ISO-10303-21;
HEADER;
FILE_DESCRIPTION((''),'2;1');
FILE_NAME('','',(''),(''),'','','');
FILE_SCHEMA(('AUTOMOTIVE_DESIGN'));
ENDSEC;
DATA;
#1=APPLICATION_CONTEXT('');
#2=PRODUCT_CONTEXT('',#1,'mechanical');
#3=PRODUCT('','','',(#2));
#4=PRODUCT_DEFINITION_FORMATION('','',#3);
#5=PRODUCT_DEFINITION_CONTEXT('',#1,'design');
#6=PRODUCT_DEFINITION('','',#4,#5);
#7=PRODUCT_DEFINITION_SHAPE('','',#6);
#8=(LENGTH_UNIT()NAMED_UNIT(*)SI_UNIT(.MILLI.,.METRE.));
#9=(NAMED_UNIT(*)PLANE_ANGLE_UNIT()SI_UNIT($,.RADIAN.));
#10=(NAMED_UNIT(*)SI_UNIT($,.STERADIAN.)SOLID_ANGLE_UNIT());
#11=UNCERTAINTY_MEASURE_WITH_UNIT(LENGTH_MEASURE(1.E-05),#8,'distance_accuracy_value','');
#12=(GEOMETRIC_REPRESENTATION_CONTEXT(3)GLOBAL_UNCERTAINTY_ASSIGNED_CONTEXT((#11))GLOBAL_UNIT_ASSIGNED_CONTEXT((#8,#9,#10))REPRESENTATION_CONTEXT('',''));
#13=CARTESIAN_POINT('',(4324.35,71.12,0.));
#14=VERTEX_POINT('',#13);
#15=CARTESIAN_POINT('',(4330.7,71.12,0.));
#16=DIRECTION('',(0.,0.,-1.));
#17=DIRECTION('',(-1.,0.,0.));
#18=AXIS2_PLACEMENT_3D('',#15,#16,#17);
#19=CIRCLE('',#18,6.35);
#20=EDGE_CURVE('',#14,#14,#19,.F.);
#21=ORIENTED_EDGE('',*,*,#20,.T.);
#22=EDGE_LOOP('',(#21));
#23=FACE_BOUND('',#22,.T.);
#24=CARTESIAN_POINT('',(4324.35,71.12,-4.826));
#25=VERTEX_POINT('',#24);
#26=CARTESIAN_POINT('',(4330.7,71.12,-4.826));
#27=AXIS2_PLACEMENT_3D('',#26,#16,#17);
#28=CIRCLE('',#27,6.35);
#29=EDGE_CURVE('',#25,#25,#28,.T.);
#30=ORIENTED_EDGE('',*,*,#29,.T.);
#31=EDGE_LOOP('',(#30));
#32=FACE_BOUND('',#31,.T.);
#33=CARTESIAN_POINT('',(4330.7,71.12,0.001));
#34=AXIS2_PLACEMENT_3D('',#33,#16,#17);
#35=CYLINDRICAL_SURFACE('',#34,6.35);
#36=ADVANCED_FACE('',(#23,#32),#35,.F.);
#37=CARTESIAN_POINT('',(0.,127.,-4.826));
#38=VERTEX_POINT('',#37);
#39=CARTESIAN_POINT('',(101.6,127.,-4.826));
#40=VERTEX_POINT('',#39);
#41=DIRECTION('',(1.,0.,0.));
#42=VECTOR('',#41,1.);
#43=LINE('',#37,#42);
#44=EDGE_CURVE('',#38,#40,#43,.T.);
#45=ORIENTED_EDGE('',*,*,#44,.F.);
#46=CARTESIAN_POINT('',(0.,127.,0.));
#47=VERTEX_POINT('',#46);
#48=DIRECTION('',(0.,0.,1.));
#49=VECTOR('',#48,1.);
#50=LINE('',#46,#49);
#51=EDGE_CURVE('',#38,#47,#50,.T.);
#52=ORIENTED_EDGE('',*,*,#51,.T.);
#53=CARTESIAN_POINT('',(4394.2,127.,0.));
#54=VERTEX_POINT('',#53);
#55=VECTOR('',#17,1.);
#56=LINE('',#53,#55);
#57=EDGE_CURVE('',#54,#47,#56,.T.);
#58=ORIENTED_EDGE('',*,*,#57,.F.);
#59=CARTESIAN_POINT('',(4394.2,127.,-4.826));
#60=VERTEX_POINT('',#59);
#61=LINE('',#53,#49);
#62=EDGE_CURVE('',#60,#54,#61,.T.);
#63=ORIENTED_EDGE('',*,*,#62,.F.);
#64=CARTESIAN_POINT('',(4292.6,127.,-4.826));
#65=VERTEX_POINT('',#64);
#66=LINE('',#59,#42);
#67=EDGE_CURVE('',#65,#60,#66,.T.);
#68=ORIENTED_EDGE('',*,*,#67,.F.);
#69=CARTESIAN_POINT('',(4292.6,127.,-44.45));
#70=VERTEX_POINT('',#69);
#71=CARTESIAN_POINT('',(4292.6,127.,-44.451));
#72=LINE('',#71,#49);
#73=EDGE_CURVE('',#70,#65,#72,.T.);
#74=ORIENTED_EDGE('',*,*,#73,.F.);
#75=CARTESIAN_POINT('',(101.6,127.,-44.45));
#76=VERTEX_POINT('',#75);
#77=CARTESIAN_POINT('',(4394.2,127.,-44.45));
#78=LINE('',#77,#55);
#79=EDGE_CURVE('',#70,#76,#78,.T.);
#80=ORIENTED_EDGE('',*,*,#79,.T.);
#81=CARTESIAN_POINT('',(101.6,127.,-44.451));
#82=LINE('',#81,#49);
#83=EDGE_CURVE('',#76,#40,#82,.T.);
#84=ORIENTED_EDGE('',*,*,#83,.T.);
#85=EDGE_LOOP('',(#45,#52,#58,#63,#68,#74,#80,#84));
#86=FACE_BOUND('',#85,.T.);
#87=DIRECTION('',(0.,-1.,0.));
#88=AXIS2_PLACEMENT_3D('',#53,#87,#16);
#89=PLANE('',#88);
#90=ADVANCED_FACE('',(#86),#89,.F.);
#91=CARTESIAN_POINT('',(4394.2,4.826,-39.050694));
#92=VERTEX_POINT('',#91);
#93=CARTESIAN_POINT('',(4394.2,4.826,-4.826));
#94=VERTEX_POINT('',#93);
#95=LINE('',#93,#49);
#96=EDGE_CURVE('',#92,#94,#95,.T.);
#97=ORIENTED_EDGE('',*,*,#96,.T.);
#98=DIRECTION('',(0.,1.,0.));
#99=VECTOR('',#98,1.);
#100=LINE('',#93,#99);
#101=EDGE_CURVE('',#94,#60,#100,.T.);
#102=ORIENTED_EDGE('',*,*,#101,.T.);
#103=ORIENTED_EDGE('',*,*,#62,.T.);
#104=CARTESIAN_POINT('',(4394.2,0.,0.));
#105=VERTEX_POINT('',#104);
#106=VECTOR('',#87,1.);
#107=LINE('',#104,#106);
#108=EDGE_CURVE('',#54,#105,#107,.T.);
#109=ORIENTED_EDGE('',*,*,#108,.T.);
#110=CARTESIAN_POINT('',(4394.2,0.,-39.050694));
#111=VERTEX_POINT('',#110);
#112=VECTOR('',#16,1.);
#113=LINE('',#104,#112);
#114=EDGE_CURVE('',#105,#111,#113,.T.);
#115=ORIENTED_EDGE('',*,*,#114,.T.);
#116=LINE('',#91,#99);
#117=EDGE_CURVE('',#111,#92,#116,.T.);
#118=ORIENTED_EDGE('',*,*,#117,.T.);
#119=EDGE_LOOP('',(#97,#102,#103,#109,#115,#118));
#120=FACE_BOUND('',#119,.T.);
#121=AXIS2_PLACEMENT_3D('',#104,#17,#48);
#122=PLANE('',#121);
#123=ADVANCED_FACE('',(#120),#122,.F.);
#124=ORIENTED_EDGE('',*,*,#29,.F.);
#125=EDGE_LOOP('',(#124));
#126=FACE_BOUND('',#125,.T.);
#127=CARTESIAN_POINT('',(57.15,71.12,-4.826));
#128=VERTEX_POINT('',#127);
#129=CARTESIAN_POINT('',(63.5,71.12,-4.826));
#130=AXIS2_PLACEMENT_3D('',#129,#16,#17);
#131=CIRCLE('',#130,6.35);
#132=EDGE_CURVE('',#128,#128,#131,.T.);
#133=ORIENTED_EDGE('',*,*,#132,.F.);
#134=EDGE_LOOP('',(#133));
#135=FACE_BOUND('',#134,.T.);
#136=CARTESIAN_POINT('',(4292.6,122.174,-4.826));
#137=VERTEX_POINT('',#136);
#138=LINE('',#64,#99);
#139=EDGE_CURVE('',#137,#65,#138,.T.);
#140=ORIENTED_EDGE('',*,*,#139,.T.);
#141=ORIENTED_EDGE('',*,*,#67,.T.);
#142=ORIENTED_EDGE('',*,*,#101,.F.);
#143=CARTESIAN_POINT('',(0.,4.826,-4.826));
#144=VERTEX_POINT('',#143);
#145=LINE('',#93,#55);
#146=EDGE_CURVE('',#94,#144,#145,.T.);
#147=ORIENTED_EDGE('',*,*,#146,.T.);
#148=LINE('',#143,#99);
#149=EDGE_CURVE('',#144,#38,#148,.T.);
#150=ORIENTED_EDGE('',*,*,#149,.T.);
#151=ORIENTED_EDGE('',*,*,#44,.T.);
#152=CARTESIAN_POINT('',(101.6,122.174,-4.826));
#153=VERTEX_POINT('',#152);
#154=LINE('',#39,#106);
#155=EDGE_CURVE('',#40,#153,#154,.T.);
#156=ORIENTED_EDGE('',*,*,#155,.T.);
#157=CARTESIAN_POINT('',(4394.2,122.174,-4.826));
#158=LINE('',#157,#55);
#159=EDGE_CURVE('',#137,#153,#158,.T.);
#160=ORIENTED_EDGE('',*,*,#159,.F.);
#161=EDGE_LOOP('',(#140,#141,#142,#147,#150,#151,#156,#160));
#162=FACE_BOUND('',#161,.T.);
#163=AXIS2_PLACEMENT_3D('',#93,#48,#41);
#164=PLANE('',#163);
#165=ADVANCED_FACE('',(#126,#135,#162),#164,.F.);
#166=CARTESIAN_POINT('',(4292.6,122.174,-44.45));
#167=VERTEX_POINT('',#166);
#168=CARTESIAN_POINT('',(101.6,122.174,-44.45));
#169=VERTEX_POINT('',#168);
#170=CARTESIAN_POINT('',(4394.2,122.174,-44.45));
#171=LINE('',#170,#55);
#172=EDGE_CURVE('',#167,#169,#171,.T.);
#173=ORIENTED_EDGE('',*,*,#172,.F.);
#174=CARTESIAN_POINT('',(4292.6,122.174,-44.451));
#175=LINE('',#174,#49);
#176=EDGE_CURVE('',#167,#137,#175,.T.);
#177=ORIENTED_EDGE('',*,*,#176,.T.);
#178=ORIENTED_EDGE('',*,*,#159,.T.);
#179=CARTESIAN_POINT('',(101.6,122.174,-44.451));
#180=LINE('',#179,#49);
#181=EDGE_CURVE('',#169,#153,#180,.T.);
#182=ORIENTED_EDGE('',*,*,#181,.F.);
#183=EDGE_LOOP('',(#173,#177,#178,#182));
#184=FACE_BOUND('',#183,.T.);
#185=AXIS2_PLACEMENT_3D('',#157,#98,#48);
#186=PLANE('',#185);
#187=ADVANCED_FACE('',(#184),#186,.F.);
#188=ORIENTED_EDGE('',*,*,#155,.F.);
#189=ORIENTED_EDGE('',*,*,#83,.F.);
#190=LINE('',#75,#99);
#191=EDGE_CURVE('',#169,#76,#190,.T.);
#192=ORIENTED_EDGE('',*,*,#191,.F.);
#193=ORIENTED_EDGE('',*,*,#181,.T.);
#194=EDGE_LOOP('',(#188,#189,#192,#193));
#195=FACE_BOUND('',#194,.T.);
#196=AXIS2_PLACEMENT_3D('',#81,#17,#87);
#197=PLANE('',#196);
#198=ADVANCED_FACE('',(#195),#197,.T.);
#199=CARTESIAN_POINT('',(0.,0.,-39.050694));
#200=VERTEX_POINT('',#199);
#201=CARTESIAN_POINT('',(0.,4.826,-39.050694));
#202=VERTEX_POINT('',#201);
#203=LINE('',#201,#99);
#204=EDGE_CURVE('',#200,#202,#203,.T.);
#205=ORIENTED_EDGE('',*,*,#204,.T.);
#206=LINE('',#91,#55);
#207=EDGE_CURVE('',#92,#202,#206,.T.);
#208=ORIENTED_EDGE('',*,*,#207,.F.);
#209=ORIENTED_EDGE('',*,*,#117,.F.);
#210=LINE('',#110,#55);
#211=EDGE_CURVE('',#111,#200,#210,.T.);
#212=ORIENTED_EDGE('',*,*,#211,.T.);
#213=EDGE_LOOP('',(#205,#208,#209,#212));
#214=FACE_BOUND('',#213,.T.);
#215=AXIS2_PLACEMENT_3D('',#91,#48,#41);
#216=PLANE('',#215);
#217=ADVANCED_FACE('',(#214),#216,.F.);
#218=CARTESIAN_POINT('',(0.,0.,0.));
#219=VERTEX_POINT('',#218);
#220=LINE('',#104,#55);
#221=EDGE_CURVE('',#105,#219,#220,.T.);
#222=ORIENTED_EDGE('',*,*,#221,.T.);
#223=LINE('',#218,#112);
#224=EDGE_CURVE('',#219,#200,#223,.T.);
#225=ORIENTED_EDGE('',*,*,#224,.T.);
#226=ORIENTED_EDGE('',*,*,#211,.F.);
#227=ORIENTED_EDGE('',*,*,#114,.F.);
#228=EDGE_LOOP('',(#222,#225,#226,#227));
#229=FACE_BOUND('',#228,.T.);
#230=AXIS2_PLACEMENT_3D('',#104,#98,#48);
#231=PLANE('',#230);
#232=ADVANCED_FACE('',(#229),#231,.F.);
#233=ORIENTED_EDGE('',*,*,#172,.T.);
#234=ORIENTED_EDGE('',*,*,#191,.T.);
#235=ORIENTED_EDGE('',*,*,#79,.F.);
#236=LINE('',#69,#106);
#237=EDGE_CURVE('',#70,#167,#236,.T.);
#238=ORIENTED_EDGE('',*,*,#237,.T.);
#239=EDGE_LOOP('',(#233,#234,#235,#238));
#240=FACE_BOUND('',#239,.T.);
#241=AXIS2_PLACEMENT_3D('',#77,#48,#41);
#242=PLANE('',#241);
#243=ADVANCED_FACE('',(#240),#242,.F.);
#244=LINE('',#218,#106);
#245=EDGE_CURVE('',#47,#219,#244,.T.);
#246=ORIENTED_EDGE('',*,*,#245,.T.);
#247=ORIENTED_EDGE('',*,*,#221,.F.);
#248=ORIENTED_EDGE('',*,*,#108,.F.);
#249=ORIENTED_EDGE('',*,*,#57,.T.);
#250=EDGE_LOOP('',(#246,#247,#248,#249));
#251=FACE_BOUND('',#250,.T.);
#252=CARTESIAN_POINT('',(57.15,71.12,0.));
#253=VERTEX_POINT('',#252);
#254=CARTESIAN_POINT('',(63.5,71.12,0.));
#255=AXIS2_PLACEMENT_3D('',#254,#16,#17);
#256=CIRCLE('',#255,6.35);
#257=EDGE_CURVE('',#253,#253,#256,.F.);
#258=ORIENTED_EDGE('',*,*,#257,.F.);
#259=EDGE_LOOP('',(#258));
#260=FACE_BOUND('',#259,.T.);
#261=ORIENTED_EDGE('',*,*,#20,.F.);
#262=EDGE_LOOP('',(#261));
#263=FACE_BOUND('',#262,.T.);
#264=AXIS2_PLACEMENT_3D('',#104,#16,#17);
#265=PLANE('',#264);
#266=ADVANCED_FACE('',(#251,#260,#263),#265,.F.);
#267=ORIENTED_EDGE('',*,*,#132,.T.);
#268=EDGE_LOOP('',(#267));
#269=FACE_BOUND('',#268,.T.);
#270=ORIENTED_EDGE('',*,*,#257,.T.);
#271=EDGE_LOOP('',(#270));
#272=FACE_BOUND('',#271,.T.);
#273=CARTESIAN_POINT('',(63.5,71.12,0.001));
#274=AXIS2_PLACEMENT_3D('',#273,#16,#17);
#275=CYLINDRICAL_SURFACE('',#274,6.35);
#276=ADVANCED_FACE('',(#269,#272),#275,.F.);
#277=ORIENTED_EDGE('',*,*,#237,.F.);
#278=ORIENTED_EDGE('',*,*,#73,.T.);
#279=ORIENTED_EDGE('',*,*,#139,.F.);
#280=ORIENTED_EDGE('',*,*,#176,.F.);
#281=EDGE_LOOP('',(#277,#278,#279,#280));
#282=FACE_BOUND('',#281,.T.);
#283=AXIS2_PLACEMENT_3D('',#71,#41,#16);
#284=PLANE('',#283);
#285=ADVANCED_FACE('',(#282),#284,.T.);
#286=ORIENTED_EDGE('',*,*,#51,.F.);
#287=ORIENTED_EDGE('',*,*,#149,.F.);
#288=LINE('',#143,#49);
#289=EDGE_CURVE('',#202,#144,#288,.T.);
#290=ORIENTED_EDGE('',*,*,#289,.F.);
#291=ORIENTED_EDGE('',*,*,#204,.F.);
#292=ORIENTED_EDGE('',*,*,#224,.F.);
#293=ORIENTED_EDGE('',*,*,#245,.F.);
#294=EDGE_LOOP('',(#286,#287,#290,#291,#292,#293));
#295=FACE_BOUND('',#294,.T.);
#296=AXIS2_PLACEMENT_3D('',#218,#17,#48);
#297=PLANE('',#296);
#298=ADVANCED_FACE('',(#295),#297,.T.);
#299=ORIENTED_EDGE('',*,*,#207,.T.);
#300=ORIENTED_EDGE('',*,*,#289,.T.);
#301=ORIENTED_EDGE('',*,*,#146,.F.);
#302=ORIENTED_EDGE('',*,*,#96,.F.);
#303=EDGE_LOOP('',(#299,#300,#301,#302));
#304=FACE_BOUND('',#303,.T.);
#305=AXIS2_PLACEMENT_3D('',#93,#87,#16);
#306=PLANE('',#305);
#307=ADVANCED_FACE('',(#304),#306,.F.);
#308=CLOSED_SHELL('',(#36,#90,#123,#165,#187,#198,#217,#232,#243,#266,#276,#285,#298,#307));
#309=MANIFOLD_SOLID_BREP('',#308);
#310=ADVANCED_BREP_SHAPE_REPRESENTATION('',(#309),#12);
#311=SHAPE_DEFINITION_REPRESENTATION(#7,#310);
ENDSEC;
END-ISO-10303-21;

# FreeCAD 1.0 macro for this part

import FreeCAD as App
import Part
import Sketcher
from FreeCAD import Vector
Q = App.Units.Quantity

doc = App.newDocument("Part")
params = doc.addObject("Spreadsheet::Sheet", "Params")
for row, (alias, value) in enumerate([
    ("sketch1_width", "5 in"),
    ("sketch1_width2", "0.19 in"),
    ("sketch1_height", "1.56 in"),
    ("sketch1_height2", "1.75 in"),
    ("pad1_length", "173 in"),
    ("sketch2_diameter", "0.5 in"),
    ("sketch3_diameter", "0.5 in"),
    ("sketch4_width", "4 in"),
    ("sketch4_height", "0.19 in"),
    ("sketch5_width", "4 in"),
    ("sketch5_height", "0.19 in"),
], start=1):
    params.set(f"A{row}", alias)
    params.set(f"B{row}", "=" + value)
    params.setAlias(f"B{row}", alias)

body = doc.addObject("PartDesign::Body", "Body")

sketch1 = body.newObject("Sketcher::SketchObject", "Sketch")
sketch1.AttachmentSupport = (doc.getObject("YZ_Plane"), [""])
sketch1.MapMode = "FlatFace"
sketch1.addGeometry([
    Part.LineSegment(Vector(127, 0, 0), Vector(0, 0, 0)),
    Part.LineSegment(Vector(0, 0, 0), Vector(0, -39.050694, 0)),
    Part.LineSegment(Vector(0, -39.050694, 0), Vector(4.826, -39.050694, 0)),
    Part.LineSegment(Vector(4.826, -39.050694, 0), Vector(4.826, -4.826, 0)),
    Part.LineSegment(Vector(4.826, -4.826, 0), Vector(122.174, -4.826, 0)),
    Part.LineSegment(Vector(122.174, -4.826, 0), Vector(122.174, -44.45, 0)),
    Part.LineSegment(Vector(122.174, -44.45, 0), Vector(127, -44.45, 0)),
    Part.LineSegment(Vector(127, -44.45, 0), Vector(127, 0, 0)),
], False)
sketch1.addConstraint([
    Sketcher.Constraint("Coincident", 0, 2, 1, 1),
    Sketcher.Constraint("Coincident", 1, 2, 2, 1),
    Sketcher.Constraint("Coincident", 2, 2, 3, 1),
    Sketcher.Constraint("Coincident", 3, 2, 4, 1),
    Sketcher.Constraint("Coincident", 4, 2, 5, 1),
    Sketcher.Constraint("Coincident", 5, 2, 6, 1),
    Sketcher.Constraint("Coincident", 6, 2, 7, 1),
    Sketcher.Constraint("Coincident", 7, 2, 0, 1),
    Sketcher.Constraint("Horizontal", 0),
    Sketcher.Constraint("Vertical", 1),
    Sketcher.Constraint("Horizontal", 2),
    Sketcher.Constraint("Vertical", 3),
    Sketcher.Constraint("Horizontal", 4),
    Sketcher.Constraint("Vertical", 5),
    Sketcher.Constraint("Horizontal", 6),
    Sketcher.Constraint("Vertical", 7),
    Sketcher.Constraint("Coincident", 0, 2, -1, 1),
    Sketcher.Constraint("Equal", 2, 6),
    Sketcher.Constraint("DistanceX", 0, 2, 0, 1, Q("5 in")),
    Sketcher.Constraint("DistanceX", 2, 1, 2, 2, Q("0.19 in")),
    Sketcher.Constraint("DistanceY", 5, 2, 5, 1, Q("1.56 in")),
    Sketcher.Constraint("DistanceY", 7, 1, 7, 2, Q("1.75 in")),
    Sketcher.Constraint("DistanceY", 1, 2, 1, 1, 39.050694),
])
sketch1.setExpression("Constraints[18]", "Params.sketch1_width")
sketch1.setExpression("Constraints[19]", "Params.sketch1_width2")
sketch1.setExpression("Constraints[20]", "Params.sketch1_height")
sketch1.setExpression("Constraints[21]", "Params.sketch1_height2")
pad1 = body.newObject("PartDesign::Pad", "Pad")
pad1.Profile = sketch1
pad1.setExpression("Length", "Params.pad1_length")

sketch2 = body.newObject("Sketcher::SketchObject", "Sketch001")
sketch2.AttachmentSupport = (doc.getObject("XY_Plane"), [""])
sketch2.MapMode = "FlatFace"
sketch2.AttachmentOffset = App.Placement(Vector(0, 0, -0.19 * 25.4), App.Rotation())
sketch2.addGeometry(Part.Circle(Vector(4330.7, 71.12, 0), Vector(0, 0, 1), 6.35), False)
sketch2.addConstraint([
    Sketcher.Constraint("Diameter", 0, Q("0.5 in")),
    Sketcher.Constraint("DistanceX", -1, 1, 0, 3, Q("170.5 in")),
    Sketcher.Constraint("DistanceY", -1, 1, 0, 3, Q("2.8 in")),
])
sketch2.setExpression("Constraints[0]", "Params.sketch2_diameter")
pocket1 = body.newObject("PartDesign::Pocket", "Pocket")
pocket1.Profile = sketch2
pocket1.Type = "UpToFirst"
pocket1.Reversed = True

sketch3 = body.newObject("Sketcher::SketchObject", "Sketch002")
sketch3.AttachmentSupport = (doc.getObject("XY_Plane"), [""])
sketch3.MapMode = "FlatFace"
sketch3.AttachmentOffset = App.Placement(Vector(0, 0, -0.19 * 25.4), App.Rotation())
sketch3.addGeometry(Part.Circle(Vector(63.5, 71.12, 0), Vector(0, 0, 1), 6.35), False)
sketch3.addConstraint([
    Sketcher.Constraint("Diameter", 0, Q("0.5 in")),
    Sketcher.Constraint("DistanceX", -1, 1, 0, 3, Q("2.5 in")),
    Sketcher.Constraint("DistanceY", -1, 1, 0, 3, Q("2.8 in")),
])
sketch3.setExpression("Constraints[0]", "Params.sketch3_diameter")
pocket2 = body.newObject("PartDesign::Pocket", "Pocket001")
pocket2.Profile = sketch3
pocket2.Type = "UpToFirst"
pocket2.Reversed = True

sketch4 = body.newObject("Sketcher::SketchObject", "Sketch003")
sketch4.AttachmentSupport = (doc.getObject("XY_Plane"), [""])
sketch4.MapMode = "FlatFace"
sketch4.AttachmentOffset = App.Placement(Vector(0, 0, -0.19 * 25.4), App.Rotation())
sketch4.addGeometry([
    Part.LineSegment(Vector(4394.2, 127, 0), Vector(4394.2, 122.174, 0)),
    Part.LineSegment(Vector(4394.2, 122.174, 0), Vector(4292.6, 122.174, 0)),
    Part.LineSegment(Vector(4292.6, 122.174, 0), Vector(4292.6, 127, 0)),
    Part.LineSegment(Vector(4292.6, 127, 0), Vector(4394.2, 127, 0)),
], False)
sketch4.addConstraint([
    Sketcher.Constraint("Coincident", 0, 2, 1, 1),
    Sketcher.Constraint("Coincident", 1, 2, 2, 1),
    Sketcher.Constraint("Coincident", 2, 2, 3, 1),
    Sketcher.Constraint("Coincident", 3, 2, 0, 1),
    Sketcher.Constraint("Vertical", 0),
    Sketcher.Constraint("Horizontal", 1),
    Sketcher.Constraint("Vertical", 2),
    Sketcher.Constraint("Horizontal", 3),
    Sketcher.Constraint("DistanceX", 1, 2, 1, 1, Q("4 in")),
    Sketcher.Constraint("DistanceX", -1, 1, 0, 2, Q("173 in")),
    Sketcher.Constraint("DistanceY", -1, 1, 2, 2, Q("5 in")),
    Sketcher.Constraint("DistanceY", 0, 2, 0, 1, Q("0.19 in")),
])
sketch4.setExpression("Constraints[8]", "Params.sketch4_width")
sketch4.setExpression("Constraints[11]", "Params.sketch4_height")
pocket3 = body.newObject("PartDesign::Pocket", "Pocket002")
pocket3.Profile = sketch4
pocket3.Type = "UpToFirst"

sketch5 = body.newObject("Sketcher::SketchObject", "Sketch004")
sketch5.AttachmentSupport = (doc.getObject("XY_Plane"), [""])
sketch5.MapMode = "FlatFace"
sketch5.AttachmentOffset = App.Placement(Vector(0, 0, -0.19 * 25.4), App.Rotation())
sketch5.addGeometry([
    Part.LineSegment(Vector(101.6, 127, 0), Vector(101.6, 122.174, 0)),
    Part.LineSegment(Vector(101.6, 122.174, 0), Vector(0, 122.174, 0)),
    Part.LineSegment(Vector(0, 122.174, 0), Vector(0, 127, 0)),
    Part.LineSegment(Vector(0, 127, 0), Vector(101.6, 127, 0)),
], False)
sketch5.addConstraint([
    Sketcher.Constraint("Coincident", 0, 2, 1, 1),
    Sketcher.Constraint("Coincident", 1, 2, 2, 1),
    Sketcher.Constraint("Coincident", 2, 2, 3, 1),
    Sketcher.Constraint("Coincident", 3, 2, 0, 1),
    Sketcher.Constraint("Vertical", 0),
    Sketcher.Constraint("Horizontal", 1),
    Sketcher.Constraint("Vertical", 2),
    Sketcher.Constraint("Horizontal", 3),
    Sketcher.Constraint("PointOnObject", 1, 2, -2),
    Sketcher.Constraint("DistanceX", 1, 2, 1, 1, Q("4 in")),
    Sketcher.Constraint("DistanceY", -1, 1, 2, 2, Q("5 in")),
    Sketcher.Constraint("DistanceY", 0, 2, 0, 1, Q("0.19 in")),
])
sketch5.setExpression("Constraints[9]", "Params.sketch5_width")
sketch5.setExpression("Constraints[11]", "Params.sketch5_height")
pocket4 = body.newObject("PartDesign::Pocket", "Pocket003")
pocket4.Profile = sketch5
pocket4.Type = "UpToFirst"

doc.recompute()
